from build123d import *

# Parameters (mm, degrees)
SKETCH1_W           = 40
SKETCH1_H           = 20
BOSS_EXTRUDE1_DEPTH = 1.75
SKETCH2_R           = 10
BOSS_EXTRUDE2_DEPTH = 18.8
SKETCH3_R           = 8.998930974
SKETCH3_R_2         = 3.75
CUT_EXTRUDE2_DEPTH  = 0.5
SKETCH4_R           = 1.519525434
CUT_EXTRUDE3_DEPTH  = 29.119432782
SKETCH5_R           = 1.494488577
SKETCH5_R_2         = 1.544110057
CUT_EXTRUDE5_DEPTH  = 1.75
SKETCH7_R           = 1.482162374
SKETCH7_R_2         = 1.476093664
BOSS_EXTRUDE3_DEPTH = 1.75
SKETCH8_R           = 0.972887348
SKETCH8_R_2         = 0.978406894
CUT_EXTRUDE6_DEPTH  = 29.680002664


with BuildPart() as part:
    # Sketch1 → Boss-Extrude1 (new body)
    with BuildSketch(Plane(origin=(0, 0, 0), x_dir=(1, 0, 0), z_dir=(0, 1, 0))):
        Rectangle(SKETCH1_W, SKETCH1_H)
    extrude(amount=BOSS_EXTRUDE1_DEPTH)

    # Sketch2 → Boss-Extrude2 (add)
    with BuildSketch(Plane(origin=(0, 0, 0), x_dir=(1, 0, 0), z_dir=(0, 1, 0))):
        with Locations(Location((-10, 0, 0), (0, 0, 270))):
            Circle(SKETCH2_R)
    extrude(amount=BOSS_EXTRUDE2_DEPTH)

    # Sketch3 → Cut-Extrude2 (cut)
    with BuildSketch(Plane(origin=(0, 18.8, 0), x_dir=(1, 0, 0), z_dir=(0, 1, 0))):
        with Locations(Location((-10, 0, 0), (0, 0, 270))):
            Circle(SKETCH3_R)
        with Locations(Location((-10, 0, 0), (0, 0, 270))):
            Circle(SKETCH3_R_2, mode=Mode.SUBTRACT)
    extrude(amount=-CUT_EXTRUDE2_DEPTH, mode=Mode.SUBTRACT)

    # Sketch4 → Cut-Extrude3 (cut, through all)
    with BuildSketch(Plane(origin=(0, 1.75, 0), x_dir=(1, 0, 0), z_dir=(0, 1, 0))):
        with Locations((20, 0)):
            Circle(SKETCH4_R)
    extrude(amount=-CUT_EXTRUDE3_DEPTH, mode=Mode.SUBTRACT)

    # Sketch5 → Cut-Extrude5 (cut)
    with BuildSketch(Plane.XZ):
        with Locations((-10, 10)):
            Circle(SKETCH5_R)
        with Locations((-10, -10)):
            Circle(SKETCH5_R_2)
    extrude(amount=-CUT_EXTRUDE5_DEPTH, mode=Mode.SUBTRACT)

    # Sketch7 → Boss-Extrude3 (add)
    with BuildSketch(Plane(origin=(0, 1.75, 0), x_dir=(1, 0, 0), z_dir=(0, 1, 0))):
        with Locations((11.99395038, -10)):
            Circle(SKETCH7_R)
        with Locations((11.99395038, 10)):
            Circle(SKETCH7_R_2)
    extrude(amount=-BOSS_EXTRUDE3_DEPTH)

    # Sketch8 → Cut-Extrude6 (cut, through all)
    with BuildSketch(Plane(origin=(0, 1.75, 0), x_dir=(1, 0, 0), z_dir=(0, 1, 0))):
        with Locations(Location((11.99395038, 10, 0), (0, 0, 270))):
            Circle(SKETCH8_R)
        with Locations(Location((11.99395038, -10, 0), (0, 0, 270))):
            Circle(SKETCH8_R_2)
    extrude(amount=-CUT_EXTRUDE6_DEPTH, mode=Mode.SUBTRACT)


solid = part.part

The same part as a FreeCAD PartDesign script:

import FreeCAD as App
import Part
import Sketcher
from FreeCAD import Vector

doc = App.newDocument("Part")
body = doc.addObject("PartDesign::Body", "Body")

sketch1 = body.newObject("Sketcher::SketchObject", "Sketch")
sketch1.AttachmentSupport = (doc.getObject("XZ_Plane"), [""])
sketch1.MapMode = "FlatFace"
sketch1.addGeometry(Part.LineSegment(Vector(-20, -10, 0), Vector(-20, 10, 0)), False)
sketch1.addGeometry(Part.LineSegment(Vector(-20, 10, 0), Vector(20, 10, 0)), False)
sketch1.addGeometry(Part.LineSegment(Vector(20, 10, 0), Vector(20, -10, 0)), False)
sketch1.addGeometry(Part.LineSegment(Vector(20, -10, 0), Vector(-20, -10, 0)), False)
sketch1.addConstraint(Sketcher.Constraint("Coincident", 0, 2, 1, 1))
sketch1.addConstraint(Sketcher.Constraint("Coincident", 1, 2, 2, 1))
sketch1.addConstraint(Sketcher.Constraint("Coincident", 2, 2, 3, 1))
sketch1.addConstraint(Sketcher.Constraint("Coincident", 3, 2, 0, 1))
sketch1.addConstraint(Sketcher.Constraint("Vertical", 0))
sketch1.addConstraint(Sketcher.Constraint("Horizontal", 1))
sketch1.addConstraint(Sketcher.Constraint("Vertical", 2))
sketch1.addConstraint(Sketcher.Constraint("Horizontal", 3))
sketch1.addConstraint(Sketcher.Constraint("Symmetric", 0, 2, 2, 2, -1, 1))
sketch1.addConstraint(Sketcher.Constraint("DistanceX", 1, 1, 1, 2, 40.0))
sketch1.addConstraint(Sketcher.Constraint("DistanceY", 0, 1, 0, 2, 20.0))
pad1 = body.newObject("PartDesign::Pad", "Pad")
pad1.Profile = sketch1
pad1.Length = 1.75
pad1.Reversed = True

sketch2 = body.newObject("Sketcher::SketchObject", "Sketch001")
sketch2.AttachmentSupport = (doc.getObject("XZ_Plane"), [""])
sketch2.MapMode = "FlatFace"
sketch2.addGeometry(Part.Circle(Vector(-10, 0, 0), Vector(0, 0, 1), 10), False)
sketch2.addConstraint(Sketcher.Constraint("PointOnObject", 0, 3, -1))
sketch2.addConstraint(Sketcher.Constraint("Diameter", 0, 20.0))
sketch2.addConstraint(Sketcher.Constraint("DistanceX", 0, 3, -1, 1, 10.0))
pad2 = body.newObject("PartDesign::Pad", "Pad001")
pad2.Profile = sketch2
pad2.Length = 18.8
pad2.Reversed = True

sketch3 = body.newObject("Sketcher::SketchObject", "Sketch002")
sketch3.AttachmentSupport = (doc.getObject("XZ_Plane"), [""])
sketch3.MapMode = "FlatFace"
sketch3.AttachmentOffset = App.Placement(Vector(0, 0, -18.8), App.Rotation())
sketch3.addGeometry(Part.Circle(Vector(-10, 0, 0), Vector(0, 0, 1), 8.998931), False)
sketch3.addGeometry(Part.Circle(Vector(-10, 0, 0), Vector(0, 0, 1), 3.75), False)
sketch3.addConstraint(Sketcher.Constraint("Coincident", 1, 3, 0, 3))
sketch3.addConstraint(Sketcher.Constraint("PointOnObject", 0, 3, -1))
sketch3.addConstraint(Sketcher.Constraint("Diameter", 1, 7.5))
sketch3.addConstraint(Sketcher.Constraint("DistanceX", 0, 3, -1, 1, 10.0))
sketch3.addConstraint(Sketcher.Constraint("Diameter", 0, 17.997862))
pocket1 = body.newObject("PartDesign::Pocket", "Pocket")
pocket1.Profile = sketch3
pocket1.Length = 0.5
pocket1.Reversed = True

sketch4 = body.newObject("Sketcher::SketchObject", "Sketch003")
sketch4.AttachmentSupport = (doc.getObject("XZ_Plane"), [""])
sketch4.MapMode = "FlatFace"
sketch4.AttachmentOffset = App.Placement(Vector(0, 0, -1.75), App.Rotation())
sketch4.addGeometry(Part.Circle(Vector(20, 0, 0), Vector(0, 0, 1), 1.519525), False)
sketch4.addConstraint(Sketcher.Constraint("PointOnObject", 0, 3, -1))
sketch4.addConstraint(Sketcher.Constraint("DistanceX", -1, 1, 0, 3, 20.0))
sketch4.addConstraint(Sketcher.Constraint("Diameter", 0, 3.039051))
pocket2 = body.newObject("PartDesign::Pocket", "Pocket001")
pocket2.Profile = sketch4
pocket2.Type = "ThroughAll"
pocket2.Reversed = True

sketch5 = body.newObject("Sketcher::SketchObject", "Sketch004")
sketch5.AttachmentSupport = (doc.getObject("XZ_Plane"), [""])
sketch5.MapMode = "FlatFace"
sketch5.addGeometry(Part.Circle(Vector(-10, 10, 0), Vector(0, 0, 1), 1.494489), False)
sketch5.addGeometry(Part.Circle(Vector(-10, -10, 0), Vector(0, 0, 1), 1.54411), False)
sketch5.addConstraint(Sketcher.Constraint("Symmetric", 0, 3, 1, 3, -1))
sketch5.addConstraint(Sketcher.Constraint("DistanceX", 0, 3, -1, 1, 10.0))
sketch5.addConstraint(Sketcher.Constraint("DistanceY", -1, 1, 0, 3, 10.0))
sketch5.addConstraint(Sketcher.Constraint("Diameter", 1, 3.08822))
sketch5.addConstraint(Sketcher.Constraint("Diameter", 0, 2.988977))
pocket3 = body.newObject("PartDesign::Pocket", "Pocket002")
pocket3.Profile = sketch5
pocket3.Length = 1.75

sketch6 = body.newObject("Sketcher::SketchObject", "Sketch005")
sketch6.AttachmentSupport = (doc.getObject("XZ_Plane"), [""])
sketch6.MapMode = "FlatFace"
sketch6.AttachmentOffset = App.Placement(Vector(0, 0, -1.75), App.Rotation())
sketch6.addGeometry(Part.Circle(Vector(11.99395, 10, 0), Vector(0, 0, 1), 1.482162), False)
sketch6.addGeometry(Part.Circle(Vector(11.99395, -10, 0), Vector(0, 0, 1), 1.476094), False)
sketch6.addConstraint(Sketcher.Constraint("Symmetric", 0, 3, 1, 3, -1))
sketch6.addConstraint(Sketcher.Constraint("DistanceY", -1, 1, 0, 3, 10.0))
sketch6.addConstraint(Sketcher.Constraint("Diameter", 0, 2.964325))
sketch6.addConstraint(Sketcher.Constraint("Diameter", 1, 2.952187))
sketch6.addConstraint(Sketcher.Constraint("DistanceX", -1, 1, 0, 3, 11.99395))
pad3 = body.newObject("PartDesign::Pad", "Pad002")
pad3.Profile = sketch6
pad3.Length = 1.75

sketch7 = body.newObject("Sketcher::SketchObject", "Sketch006")
sketch7.AttachmentSupport = (doc.getObject("XZ_Plane"), [""])
sketch7.MapMode = "FlatFace"
sketch7.AttachmentOffset = App.Placement(Vector(0, 0, -1.75), App.Rotation())
sketch7.addGeometry(Part.Circle(Vector(11.99395, -10, 0), Vector(0, 0, 1), 0.972887), False)
sketch7.addGeometry(Part.Circle(Vector(11.99395, 10, 0), Vector(0, 0, 1), 0.978407), False)
sketch7.addConstraint(Sketcher.Constraint("Symmetric", 0, 3, 1, 3, -1))
sketch7.addConstraint(Sketcher.Constraint("DistanceY", 0, 3, -1, 1, 10.0))
sketch7.addConstraint(Sketcher.Constraint("Diameter", 0, 1.945775))
sketch7.addConstraint(Sketcher.Constraint("Diameter", 1, 1.956814))
sketch7.addConstraint(Sketcher.Constraint("DistanceX", -1, 1, 0, 3, 11.99395))
pocket4 = body.newObject("PartDesign::Pocket", "Pocket003")
pocket4.Profile = sketch7
pocket4.Type = "ThroughAll"
pocket4.Reversed = True

doc.recompute()
